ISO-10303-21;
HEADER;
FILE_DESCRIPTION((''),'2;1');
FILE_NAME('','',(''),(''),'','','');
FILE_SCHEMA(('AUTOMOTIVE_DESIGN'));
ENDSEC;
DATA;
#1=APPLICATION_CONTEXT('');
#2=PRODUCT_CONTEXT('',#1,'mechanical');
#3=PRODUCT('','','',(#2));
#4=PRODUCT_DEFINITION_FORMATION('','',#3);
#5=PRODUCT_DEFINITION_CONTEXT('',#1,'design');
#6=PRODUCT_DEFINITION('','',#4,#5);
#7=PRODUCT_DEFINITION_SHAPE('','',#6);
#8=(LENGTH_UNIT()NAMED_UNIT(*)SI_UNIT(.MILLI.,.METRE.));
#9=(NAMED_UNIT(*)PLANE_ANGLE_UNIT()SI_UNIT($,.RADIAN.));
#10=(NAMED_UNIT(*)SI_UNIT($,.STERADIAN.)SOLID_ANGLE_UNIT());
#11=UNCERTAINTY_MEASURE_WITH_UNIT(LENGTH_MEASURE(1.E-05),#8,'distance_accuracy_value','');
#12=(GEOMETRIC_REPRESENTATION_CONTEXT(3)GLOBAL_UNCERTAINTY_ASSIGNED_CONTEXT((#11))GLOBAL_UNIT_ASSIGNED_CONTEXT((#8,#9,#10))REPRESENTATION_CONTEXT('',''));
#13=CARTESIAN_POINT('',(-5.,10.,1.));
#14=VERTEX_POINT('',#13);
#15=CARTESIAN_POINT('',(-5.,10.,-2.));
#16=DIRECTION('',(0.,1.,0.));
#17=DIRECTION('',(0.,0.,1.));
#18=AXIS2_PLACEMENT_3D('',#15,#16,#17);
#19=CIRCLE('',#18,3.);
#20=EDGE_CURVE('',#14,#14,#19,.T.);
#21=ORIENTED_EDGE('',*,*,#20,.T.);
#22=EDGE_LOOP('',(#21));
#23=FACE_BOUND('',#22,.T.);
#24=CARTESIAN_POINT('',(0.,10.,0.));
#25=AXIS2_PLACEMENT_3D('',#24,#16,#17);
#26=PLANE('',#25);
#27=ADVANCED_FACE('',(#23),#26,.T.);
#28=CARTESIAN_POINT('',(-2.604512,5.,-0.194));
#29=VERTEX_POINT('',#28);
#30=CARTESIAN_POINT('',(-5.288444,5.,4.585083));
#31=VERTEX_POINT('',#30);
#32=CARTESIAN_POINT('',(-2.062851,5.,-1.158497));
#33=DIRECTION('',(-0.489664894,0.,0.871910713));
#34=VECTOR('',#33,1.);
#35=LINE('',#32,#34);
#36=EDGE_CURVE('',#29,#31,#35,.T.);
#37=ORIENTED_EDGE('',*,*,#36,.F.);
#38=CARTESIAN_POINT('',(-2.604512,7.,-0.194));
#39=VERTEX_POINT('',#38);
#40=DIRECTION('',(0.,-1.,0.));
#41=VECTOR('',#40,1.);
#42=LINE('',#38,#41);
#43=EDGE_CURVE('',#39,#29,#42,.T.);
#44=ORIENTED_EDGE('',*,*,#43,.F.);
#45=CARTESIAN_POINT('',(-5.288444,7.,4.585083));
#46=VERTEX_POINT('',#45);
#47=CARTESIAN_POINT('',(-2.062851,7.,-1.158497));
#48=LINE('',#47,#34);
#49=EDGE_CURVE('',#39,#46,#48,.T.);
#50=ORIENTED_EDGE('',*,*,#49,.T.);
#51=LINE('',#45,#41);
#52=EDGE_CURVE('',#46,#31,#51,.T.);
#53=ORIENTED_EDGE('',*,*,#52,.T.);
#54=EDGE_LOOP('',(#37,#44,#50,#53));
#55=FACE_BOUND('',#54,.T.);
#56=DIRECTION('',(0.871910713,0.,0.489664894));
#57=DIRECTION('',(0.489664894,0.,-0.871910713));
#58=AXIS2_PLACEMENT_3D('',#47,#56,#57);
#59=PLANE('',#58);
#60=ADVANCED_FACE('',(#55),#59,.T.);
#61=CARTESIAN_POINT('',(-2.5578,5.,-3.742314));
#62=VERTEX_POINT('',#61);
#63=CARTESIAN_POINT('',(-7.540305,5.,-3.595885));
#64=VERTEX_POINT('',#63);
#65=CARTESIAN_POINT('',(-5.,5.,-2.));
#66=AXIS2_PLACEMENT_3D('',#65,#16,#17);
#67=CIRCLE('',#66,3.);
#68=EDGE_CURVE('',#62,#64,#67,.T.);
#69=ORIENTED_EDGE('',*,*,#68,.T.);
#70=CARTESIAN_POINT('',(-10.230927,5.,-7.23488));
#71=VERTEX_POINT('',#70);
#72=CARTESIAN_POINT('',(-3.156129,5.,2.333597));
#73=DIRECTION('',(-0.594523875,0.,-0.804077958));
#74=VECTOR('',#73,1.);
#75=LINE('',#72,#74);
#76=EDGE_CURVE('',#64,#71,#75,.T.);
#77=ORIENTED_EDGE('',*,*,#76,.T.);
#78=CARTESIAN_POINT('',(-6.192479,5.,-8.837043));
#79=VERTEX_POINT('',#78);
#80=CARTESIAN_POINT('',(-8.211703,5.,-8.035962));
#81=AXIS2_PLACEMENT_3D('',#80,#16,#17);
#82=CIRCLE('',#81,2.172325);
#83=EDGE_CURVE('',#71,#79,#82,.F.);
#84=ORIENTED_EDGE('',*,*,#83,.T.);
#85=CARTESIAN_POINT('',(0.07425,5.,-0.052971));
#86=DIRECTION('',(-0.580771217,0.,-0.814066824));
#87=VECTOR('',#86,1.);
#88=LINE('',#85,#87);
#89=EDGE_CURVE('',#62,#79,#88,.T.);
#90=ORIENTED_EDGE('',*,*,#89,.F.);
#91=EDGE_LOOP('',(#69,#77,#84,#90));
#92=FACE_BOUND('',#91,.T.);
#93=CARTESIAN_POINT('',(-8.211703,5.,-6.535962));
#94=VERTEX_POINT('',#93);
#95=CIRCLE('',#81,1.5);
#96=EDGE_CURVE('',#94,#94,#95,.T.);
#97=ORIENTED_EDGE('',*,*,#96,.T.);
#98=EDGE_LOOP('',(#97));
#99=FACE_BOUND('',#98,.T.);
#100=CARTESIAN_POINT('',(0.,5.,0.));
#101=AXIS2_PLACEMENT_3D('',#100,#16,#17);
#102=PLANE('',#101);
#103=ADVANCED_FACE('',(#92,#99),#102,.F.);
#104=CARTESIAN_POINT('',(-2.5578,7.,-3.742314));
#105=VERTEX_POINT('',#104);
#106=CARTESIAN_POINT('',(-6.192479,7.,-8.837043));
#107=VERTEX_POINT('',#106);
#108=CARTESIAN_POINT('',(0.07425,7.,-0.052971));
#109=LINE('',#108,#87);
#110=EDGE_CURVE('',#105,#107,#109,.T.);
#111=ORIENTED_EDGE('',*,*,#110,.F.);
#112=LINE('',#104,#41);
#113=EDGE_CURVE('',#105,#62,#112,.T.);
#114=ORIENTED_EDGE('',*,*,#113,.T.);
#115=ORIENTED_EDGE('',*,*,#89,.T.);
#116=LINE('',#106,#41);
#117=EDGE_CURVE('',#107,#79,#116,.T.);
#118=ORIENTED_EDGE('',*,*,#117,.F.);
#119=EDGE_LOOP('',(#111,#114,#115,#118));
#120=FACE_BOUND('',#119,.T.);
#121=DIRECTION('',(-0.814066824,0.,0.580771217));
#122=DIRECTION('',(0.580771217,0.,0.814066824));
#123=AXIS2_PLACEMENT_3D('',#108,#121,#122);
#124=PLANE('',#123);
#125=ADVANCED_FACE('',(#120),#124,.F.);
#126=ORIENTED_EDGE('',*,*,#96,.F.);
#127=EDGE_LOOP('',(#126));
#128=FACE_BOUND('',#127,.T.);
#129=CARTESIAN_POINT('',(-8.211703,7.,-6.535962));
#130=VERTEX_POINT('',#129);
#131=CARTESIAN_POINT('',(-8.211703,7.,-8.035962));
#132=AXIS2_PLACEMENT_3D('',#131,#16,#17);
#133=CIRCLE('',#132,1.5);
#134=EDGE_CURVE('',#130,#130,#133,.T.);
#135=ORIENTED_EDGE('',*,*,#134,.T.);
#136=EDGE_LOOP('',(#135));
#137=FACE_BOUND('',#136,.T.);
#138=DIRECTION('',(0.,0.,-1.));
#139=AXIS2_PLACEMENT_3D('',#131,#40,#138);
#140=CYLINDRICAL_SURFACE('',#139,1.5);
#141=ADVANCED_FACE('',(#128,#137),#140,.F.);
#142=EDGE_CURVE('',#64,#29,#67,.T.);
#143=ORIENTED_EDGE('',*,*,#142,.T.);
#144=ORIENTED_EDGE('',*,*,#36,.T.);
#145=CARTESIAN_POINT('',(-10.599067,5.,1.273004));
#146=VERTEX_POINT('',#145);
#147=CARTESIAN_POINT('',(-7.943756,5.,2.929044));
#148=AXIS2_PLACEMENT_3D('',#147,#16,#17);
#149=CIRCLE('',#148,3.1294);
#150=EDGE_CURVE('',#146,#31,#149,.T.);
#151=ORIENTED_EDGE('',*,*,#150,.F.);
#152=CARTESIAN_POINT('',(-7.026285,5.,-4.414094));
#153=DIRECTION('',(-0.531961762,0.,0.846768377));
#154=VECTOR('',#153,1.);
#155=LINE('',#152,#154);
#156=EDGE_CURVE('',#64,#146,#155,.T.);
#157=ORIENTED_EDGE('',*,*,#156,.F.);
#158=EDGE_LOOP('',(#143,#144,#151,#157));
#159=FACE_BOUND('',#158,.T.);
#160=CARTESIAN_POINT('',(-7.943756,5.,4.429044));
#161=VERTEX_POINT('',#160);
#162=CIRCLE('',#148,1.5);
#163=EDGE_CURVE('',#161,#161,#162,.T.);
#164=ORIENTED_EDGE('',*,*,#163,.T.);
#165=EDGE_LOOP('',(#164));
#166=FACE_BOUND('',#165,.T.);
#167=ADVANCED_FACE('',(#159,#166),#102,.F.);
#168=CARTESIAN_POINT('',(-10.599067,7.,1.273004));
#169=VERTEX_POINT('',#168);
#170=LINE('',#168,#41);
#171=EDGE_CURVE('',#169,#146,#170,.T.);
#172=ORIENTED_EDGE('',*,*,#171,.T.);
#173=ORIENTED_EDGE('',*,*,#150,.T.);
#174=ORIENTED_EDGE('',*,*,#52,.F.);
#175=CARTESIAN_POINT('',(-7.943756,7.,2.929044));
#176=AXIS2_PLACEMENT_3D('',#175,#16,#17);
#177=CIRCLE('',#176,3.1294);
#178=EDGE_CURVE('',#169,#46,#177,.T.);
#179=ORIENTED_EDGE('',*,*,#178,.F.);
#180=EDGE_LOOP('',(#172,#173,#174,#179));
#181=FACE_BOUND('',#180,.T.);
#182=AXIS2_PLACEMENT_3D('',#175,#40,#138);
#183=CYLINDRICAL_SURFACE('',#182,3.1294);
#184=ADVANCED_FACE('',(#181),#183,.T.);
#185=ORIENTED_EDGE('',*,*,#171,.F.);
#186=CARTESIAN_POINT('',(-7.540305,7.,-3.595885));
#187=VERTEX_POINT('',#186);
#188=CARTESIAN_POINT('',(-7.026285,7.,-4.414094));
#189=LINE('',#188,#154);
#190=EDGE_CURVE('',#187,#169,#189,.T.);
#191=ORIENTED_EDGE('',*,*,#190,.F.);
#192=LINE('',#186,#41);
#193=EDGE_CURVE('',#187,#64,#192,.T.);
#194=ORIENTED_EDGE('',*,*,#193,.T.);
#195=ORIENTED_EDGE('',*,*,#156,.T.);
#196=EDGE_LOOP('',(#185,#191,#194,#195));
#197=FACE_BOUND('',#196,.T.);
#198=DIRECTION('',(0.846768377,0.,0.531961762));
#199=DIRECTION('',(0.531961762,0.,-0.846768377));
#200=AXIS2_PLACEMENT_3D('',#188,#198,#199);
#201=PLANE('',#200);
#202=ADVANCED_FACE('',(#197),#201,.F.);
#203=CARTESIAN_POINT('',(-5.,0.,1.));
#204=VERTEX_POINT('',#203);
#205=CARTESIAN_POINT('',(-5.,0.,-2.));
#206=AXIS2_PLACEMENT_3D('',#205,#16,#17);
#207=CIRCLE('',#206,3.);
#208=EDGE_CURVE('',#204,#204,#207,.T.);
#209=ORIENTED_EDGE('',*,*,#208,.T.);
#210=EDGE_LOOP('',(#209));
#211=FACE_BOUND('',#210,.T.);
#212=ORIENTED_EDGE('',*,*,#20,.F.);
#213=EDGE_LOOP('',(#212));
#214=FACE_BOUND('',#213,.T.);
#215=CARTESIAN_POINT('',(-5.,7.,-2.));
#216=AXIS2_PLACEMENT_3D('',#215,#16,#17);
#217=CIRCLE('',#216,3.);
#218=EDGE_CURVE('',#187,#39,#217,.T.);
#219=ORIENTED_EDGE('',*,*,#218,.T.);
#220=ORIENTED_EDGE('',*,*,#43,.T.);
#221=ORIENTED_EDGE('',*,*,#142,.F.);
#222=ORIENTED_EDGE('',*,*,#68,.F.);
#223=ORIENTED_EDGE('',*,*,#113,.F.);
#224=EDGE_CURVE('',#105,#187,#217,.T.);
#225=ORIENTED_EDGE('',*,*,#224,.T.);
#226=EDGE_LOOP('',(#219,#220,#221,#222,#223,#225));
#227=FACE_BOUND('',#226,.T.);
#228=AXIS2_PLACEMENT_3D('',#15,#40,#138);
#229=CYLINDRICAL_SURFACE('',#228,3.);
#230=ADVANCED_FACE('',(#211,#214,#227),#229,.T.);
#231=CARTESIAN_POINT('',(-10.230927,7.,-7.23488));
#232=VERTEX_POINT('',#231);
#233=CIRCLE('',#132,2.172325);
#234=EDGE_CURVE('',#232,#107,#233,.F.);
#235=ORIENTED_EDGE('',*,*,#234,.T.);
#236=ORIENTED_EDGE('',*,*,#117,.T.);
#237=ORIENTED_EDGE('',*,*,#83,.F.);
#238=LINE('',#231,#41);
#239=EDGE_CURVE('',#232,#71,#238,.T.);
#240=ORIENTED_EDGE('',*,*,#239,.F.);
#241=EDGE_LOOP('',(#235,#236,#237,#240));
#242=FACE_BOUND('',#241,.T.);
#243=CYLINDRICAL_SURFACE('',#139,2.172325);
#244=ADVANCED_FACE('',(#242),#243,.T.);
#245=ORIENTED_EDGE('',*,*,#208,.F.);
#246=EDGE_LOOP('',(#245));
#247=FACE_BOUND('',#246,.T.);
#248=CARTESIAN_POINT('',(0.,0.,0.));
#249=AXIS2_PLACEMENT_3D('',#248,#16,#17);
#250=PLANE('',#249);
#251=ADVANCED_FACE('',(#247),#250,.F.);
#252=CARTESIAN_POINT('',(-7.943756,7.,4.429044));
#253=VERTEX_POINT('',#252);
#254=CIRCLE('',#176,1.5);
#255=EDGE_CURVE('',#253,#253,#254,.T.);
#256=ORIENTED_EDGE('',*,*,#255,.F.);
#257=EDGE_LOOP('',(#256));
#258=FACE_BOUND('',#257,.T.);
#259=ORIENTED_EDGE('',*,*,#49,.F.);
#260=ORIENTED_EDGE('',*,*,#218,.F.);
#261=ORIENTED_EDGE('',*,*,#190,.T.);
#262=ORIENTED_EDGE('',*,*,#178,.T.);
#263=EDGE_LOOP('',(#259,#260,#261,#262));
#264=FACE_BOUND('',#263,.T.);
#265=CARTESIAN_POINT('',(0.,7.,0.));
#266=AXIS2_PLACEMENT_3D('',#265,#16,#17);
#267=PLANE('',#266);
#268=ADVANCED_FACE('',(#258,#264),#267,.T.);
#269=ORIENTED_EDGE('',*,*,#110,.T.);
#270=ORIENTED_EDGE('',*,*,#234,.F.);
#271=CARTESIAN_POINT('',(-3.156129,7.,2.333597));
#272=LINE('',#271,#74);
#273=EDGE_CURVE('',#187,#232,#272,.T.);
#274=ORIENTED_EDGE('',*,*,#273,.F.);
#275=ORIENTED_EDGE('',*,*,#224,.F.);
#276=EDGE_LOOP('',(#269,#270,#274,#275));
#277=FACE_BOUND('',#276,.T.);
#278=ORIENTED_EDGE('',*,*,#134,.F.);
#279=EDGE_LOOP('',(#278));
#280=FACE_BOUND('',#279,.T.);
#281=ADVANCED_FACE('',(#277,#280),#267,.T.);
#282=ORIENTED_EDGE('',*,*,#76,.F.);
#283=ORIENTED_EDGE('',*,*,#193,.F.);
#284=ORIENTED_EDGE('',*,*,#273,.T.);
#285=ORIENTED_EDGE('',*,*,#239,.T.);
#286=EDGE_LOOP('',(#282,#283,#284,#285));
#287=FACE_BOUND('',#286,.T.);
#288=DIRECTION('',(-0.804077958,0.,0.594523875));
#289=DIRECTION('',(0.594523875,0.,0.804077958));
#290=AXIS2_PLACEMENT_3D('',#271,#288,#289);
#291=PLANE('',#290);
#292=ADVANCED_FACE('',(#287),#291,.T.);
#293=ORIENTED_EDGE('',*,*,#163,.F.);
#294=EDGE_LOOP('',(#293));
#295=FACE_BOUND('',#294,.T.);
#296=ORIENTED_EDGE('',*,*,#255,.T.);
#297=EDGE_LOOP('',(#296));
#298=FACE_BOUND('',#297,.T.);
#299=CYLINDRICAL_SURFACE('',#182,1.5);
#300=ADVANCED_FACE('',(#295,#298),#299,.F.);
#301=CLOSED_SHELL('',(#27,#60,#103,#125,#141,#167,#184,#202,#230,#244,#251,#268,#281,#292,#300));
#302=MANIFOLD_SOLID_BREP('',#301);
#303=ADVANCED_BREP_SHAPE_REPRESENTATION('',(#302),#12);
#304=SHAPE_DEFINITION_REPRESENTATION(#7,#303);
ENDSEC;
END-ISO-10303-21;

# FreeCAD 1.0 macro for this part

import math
import FreeCAD as App
import Part
import Sketcher

V = App.Vector
Q = App.Units.Quantity

doc = App.newDocument("Part")
params = doc.addObject("Spreadsheet::Sheet", "Params")
for row, (alias, value) in enumerate([
    ("sketch1_diameter", "6 mm"),
    ("pad1_length", "10 mm"),
    ("sketch2_diameter", "3 mm"),
    ("sketch2_radius", "3 mm"),
    ("pad2_length", "2 mm"),
], start=1):
    params.set(f"A{row}", alias)
    params.set(f"B{row}", "=" + value)
    params.setAlias(f"B{row}", alias)

body = doc.addObject("PartDesign::Body", "Body")

# Sketch on XZ plane
sketch1 = body.newObject("Sketcher::SketchObject", "Sketch")
sketch1.AttachmentSupport = (doc.getObject("XZ_Plane"), [""])
sketch1.MapMode = "FlatFace"
sketch1.addGeometry(Part.Circle(V(-5, -2, 0), V(0, 0, 1), 3), False)
sketch1.addConstraint(Sketcher.Constraint("Diameter", 0, Q("6 mm")))
sketch1.addConstraint(Sketcher.Constraint("DistanceX", 0, 3, -1, 1, Q("5 mm")))
sketch1.addConstraint(Sketcher.Constraint("DistanceY", 0, 3, -1, 1, Q("2 mm")))
sketch1.setExpression("Constraints[0]", "Params.sketch1_diameter")
pad1 = body.newObject("PartDesign::Pad", "Pad")
pad1.Profile = sketch1
pad1.setExpression("Length", "Params.pad1_length")
pad1.Reversed = True

# Sketch on XZ plane
sketch2 = body.newObject("Sketcher::SketchObject", "Sketch001")
sketch2.AttachmentSupport = (doc.getObject("XZ_Plane"), [""])
sketch2.MapMode = "FlatFace"
sketch2.AttachmentOffset = App.Placement(V(0, 0, -5), App.Rotation())
sketch2.addGeometry(Part.ArcOfCircle(Part.Circle(V(-5, -2, 0), V(0, 0, 1), 3), math.radians(37), math.radians(212)), False)
sketch2.addGeometry(Part.LineSegment(V(-7.5, -3.6, 0), V(-10.6, 1.3, 0)), False)
sketch2.addGeometry(Part.ArcOfCircle(Part.Circle(V(-7.9, 2.9, 0), V(0, 0, 1), 3.1), math.radians(32), math.radians(212)), False)
sketch2.addGeometry(Part.LineSegment(V(-5.3, 4.6, 0), V(-2.6, -0.2, 0)), False)
sketch2.addGeometry(Part.Circle(V(-7.9, 2.9, 0), V(0, 0, 1), 1.5), False)
sketch2.addGeometry(Part.LineSegment(V(-10.2, -7.2, 0), V(-7.5, -3.6, 0)), False)
sketch2.addGeometry(Part.ArcOfCircle(Part.Circle(V(-5, -2, 0), V(0, 0, 1), 3), math.radians(-148), math.radians(-36)), False)
sketch2.addGeometry(Part.LineSegment(V(-2.6, -3.7, 0), V(-6.2, -8.8, 0)), False)
sketch2.addGeometry(Part.ArcOfCircle(Part.Circle(V(-8.2, -8, 0), V(0, 0, 1), 2.2), math.radians(158), math.radians(338)), False)
sketch2.addGeometry(Part.Circle(V(-8.2, -8, 0), V(0, 0, 1), 1.5), False)
sketch2.addConstraint(Sketcher.Constraint("Tangent", 0, 2, 1, 1))
sketch2.addConstraint(Sketcher.Constraint("Coincident", 1, 2, 2, 2))
sketch2.addConstraint(Sketcher.Constraint("Coincident", 2, 1, 3, 1))
sketch2.addConstraint(Sketcher.Constraint("Coincident", 3, 2, 0, 1))
sketch2.addConstraint(Sketcher.Constraint("Coincident", 5, 2, 6, 1))
sketch2.addConstraint(Sketcher.Constraint("Tangent", 6, 2, 7, 1))
sketch2.addConstraint(Sketcher.Constraint("Coincident", 7, 2, 8, 2))
sketch2.addConstraint(Sketcher.Constraint("Coincident", 8, 1, 5, 1))
sketch2.addConstraint(Sketcher.Constraint("Coincident", 4, 3, 2, 3))
sketch2.addConstraint(Sketcher.Constraint("Coincident", 6, 3, 0, 3))
sketch2.addConstraint(Sketcher.Constraint("Coincident", 9, 3, 8, 3))
sketch2.addConstraint(Sketcher.Constraint("Coincident", 5, 2, 0, 2))
sketch2.addConstraint(Sketcher.Constraint("Equal", 4, 9))
sketch2.addConstraint(Sketcher.Constraint("Diameter", 4, Q("3 mm")))
sketch2.addConstraint(Sketcher.Constraint("Radius", 0, Q("3 mm")))
sketch2.addConstraint(Sketcher.Constraint("DistanceX", 0, 3, -1, 1, Q("5 mm")))
sketch2.addConstraint(Sketcher.Constraint("DistanceY", 0, 3, -1, 1, Q("2 mm")))
sketch2.addConstraint(Sketcher.Constraint("Radius", 2, Q("3.1294 mm")))
sketch2.addConstraint(Sketcher.Constraint("DistanceY", 3, 2, -1, 1, Q("0.194 mm")))
sketch2.addConstraint(Sketcher.Constraint("Radius", 8, Q("2.172325 mm")))
sketch2.addConstraint(Sketcher.Constraint("DistanceX", 6, 2, -1, 1, Q("2.5578 mm")))
sketch2.addConstraint(Sketcher.Constraint("Distance", 3, Q("5.481161 mm")))
sketch2.addConstraint(Sketcher.Constraint("DistanceY", 8, 3, -1, 1, Q("8.035962 mm")))
sketch2.addConstraint(Sketcher.Constraint("DistanceX", 7, 2, -1, 1, Q("6.192479 mm")))
sketch2.addConstraint(Sketcher.Constraint("DistanceY", 8, 1, -1, 1, Q("7.23488 mm")))
sketch2.addConstraint(Sketcher.Constraint("DistanceX", 2, 3, 0, 2, Q("0.40345 mm")))
sketch2.addConstraint(Sketcher.Constraint("DistanceY", 0, 2, 2, 3, Q("6.524929 mm")))
sketch2.addConstraint(Sketcher.Constraint("DistanceX", 1, 2, 4, 3, Q("2.655312 mm")))
sketch2.setExpression("Constraints[13]", "Params.sketch2_diameter")
sketch2.setExpression("Constraints[14]", "Params.sketch2_radius")
pad2 = body.newObject("PartDesign::Pad", "Pad001")
pad2.Profile = sketch2
pad2.setExpression("Length", "Params.pad2_length")
pad2.Reversed = True

doc.recompute()
